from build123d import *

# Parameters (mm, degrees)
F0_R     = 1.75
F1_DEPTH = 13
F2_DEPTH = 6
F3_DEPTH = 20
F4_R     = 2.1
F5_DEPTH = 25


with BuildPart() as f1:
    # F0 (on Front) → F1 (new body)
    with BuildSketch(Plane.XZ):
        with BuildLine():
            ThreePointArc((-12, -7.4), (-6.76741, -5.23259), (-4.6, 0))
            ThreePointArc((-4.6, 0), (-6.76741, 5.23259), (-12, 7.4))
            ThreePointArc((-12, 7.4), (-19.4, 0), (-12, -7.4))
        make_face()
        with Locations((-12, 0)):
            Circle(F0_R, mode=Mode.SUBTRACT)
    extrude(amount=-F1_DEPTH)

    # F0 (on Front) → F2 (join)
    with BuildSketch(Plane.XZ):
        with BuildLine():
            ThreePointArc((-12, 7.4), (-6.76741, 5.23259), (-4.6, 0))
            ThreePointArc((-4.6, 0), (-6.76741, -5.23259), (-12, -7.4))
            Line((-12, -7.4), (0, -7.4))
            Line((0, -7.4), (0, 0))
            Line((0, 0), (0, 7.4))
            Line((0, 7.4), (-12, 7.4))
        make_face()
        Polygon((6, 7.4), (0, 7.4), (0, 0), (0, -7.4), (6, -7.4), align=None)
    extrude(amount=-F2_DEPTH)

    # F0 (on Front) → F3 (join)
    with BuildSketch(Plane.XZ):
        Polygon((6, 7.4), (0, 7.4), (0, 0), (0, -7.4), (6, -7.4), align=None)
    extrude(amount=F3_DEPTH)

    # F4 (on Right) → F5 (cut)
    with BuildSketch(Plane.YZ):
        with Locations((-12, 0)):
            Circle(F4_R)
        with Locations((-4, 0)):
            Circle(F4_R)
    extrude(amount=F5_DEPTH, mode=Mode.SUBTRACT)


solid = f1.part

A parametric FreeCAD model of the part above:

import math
import FreeCAD as App
import Part
import Sketcher


def add_polygon(sketch, points):
    """Adds a closed chain of lines whose ends are joined by coincident constraints."""
    first, n = sketch.GeometryCount, len(points)
    for a, b in zip(points, points[1:] + points[:1]):
        sketch.addGeometry(Part.LineSegment(App.Vector(*a, 0), App.Vector(*b, 0)), False)
    for i in range(n):
        sketch.addConstraint(Sketcher.Constraint("Coincident", first + i, 2, first + (i + 1) % n, 1))

doc = App.newDocument("Part")
params = doc.addObject("Spreadsheet::Sheet", "Params")
for row, (alias, value) in enumerate([
    ("sketch1_diameter", "3.5 mm"),
    ("sketch1_radius", "7.400001 mm"),
    ("pad1_length", "13 mm"),
    ("sketch2_radius", "7.400001 mm"),
    ("sketch2_width", "18 mm"),
    ("pad2_length", "6 mm"),
    ("sketch3_width", "6 mm"),
    ("sketch3_height", "14.8 mm"),
    ("pad3_length", "20 mm"),
    ("sketch4_diameter", "4.2 mm"),
    ("pocket1_length", "25 mm"),
], start=1):
    params.set(f"A{row}", alias)
    params.set(f"B{row}", "=" + value)
    params.setAlias(f"B{row}", alias)

body = doc.addObject("PartDesign::Body", "Body")

sketch1 = body.newObject("Sketcher::SketchObject", "Sketch")
sketch1.AttachmentSupport = (doc.getObject("XZ_Plane"), [""])
sketch1.MapMode = "FlatFace"
sketch1.addGeometry(Part.ArcOfCircle(Part.Circle(App.Vector(-12.000001, 0.000001, 0), App.Vector(0, 0, 1), 7.400001), math.radians(-89.999995), math.radians(-0.000005)), False)
sketch1.addGeometry(Part.ArcOfCircle(Part.Circle(App.Vector(-12.000001, -0.000001, 0), App.Vector(0, 0, 1), 7.400001), math.radians(0.000005), math.radians(89.999995)), False)
sketch1.addGeometry(Part.ArcOfCircle(Part.Circle(App.Vector(-12, 0, 0), App.Vector(0, 0, 1), 7.4), math.radians(90), math.radians(270)), False)
sketch1.addGeometry(Part.Circle(App.Vector(-12, 0, 0), App.Vector(0, 0, 1), 1.75), False)
sketch1.addConstraint(Sketcher.Constraint("Tangent", 0, 2, 1, 1))
sketch1.addConstraint(Sketcher.Constraint("Tangent", 1, 2, 2, 1))
sketch1.addConstraint(Sketcher.Constraint("Tangent", 2, 2, 0, 1))
sketch1.addConstraint(Sketcher.Constraint("Coincident", 3, 3, 0, 3))
sketch1.addConstraint(Sketcher.Constraint("Symmetric", 1, 2, 2, 2, -1))
sketch1.addConstraint(Sketcher.Constraint("PointOnObject", 0, 2, -1))
sketch1.addConstraint(Sketcher.Constraint("Vertical", 3, 3, 1, 2))
sketch1.addConstraint(Sketcher.Constraint("Diameter", 3, 3.5))
sketch1.addConstraint(Sketcher.Constraint("Radius", 0, 7.400001))
sketch1.addConstraint(Sketcher.Constraint("DistanceX", 0, 3, -1, 1, 12.000001))
sketch1.setExpression("Constraints[7]", "Params.sketch1_diameter")
sketch1.setExpression("Constraints[8]", "Params.sketch1_radius")
pad1 = body.newObject("PartDesign::Pad", "Pad")
pad1.Profile = sketch1
pad1.setExpression("Length", "Params.pad1_length")
pad1.Reversed = True

sketch2 = body.newObject("Sketcher::SketchObject", "Sketch001")
sketch2.AttachmentSupport = (doc.getObject("XZ_Plane"), [""])
sketch2.MapMode = "FlatFace"
sketch2.addGeometry(Part.ArcOfCircle(Part.Circle(App.Vector(-12.000001, -0.000001, 0), App.Vector(0, 0, 1), 7.400001), math.radians(0.000005), math.radians(89.999995)), False)
sketch2.addGeometry(Part.ArcOfCircle(Part.Circle(App.Vector(-12.000001, 0.000001, 0), App.Vector(0, 0, 1), 7.400001), math.radians(-89.999995), math.radians(-0.000005)), False)
sketch2.addGeometry(Part.LineSegment(App.Vector(-12, -7.4, 0), App.Vector(6, -7.4, 0)), False)
sketch2.addGeometry(Part.LineSegment(App.Vector(6, -7.4, 0), App.Vector(6, 7.4, 0)), False)
sketch2.addGeometry(Part.LineSegment(App.Vector(6, 7.4, 0), App.Vector(-12, 7.4, 0)), False)
sketch2.addConstraint(Sketcher.Constraint("Tangent", 0, 1, 1, 2))
sketch2.addConstraint(Sketcher.Constraint("Tangent", 1, 1, 2, 1))
sketch2.addConstraint(Sketcher.Constraint("Coincident", 2, 2, 3, 1))
sketch2.addConstraint(Sketcher.Constraint("Coincident", 3, 2, 4, 1))
sketch2.addConstraint(Sketcher.Constraint("Tangent", 4, 2, 0, 2))
sketch2.addConstraint(Sketcher.Constraint("Horizontal", 2))
sketch2.addConstraint(Sketcher.Constraint("Vertical", 3))
sketch2.addConstraint(Sketcher.Constraint("Horizontal", 4))
sketch2.addConstraint(Sketcher.Constraint("Equal", 0, 1))
sketch2.addConstraint(Sketcher.Constraint("PointOnObject", 0, 3, -1))
sketch2.addConstraint(Sketcher.Constraint("PointOnObject", 0, 1, -1))
sketch2.addConstraint(Sketcher.Constraint("Radius", 0, 7.400001))
sketch2.addConstraint(Sketcher.Constraint("DistanceX", 2, 1, 2, 2, 18.0))
sketch2.addConstraint(Sketcher.Constraint("DistanceX", 0, 3, -1, 1, 12.000001))
sketch2.setExpression("Constraints[11]", "Params.sketch2_radius")
sketch2.setExpression("Constraints[12]", "Params.sketch2_width")
pad2 = body.newObject("PartDesign::Pad", "Pad001")
pad2.Profile = sketch2
pad2.setExpression("Length", "Params.pad2_length")
pad2.Reversed = True

sketch3 = body.newObject("Sketcher::SketchObject", "Sketch002")
sketch3.AttachmentSupport = (doc.getObject("XZ_Plane"), [""])
sketch3.MapMode = "FlatFace"
add_polygon(sketch3, [(6, 7.4), (0, 7.4), (0, -7.4), (6, -7.4)])
sketch3.addConstraint(Sketcher.Constraint("Horizontal", 0))
sketch3.addConstraint(Sketcher.Constraint("Vertical", 1))
sketch3.addConstraint(Sketcher.Constraint("Horizontal", 2))
sketch3.addConstraint(Sketcher.Constraint("Vertical", 3))
sketch3.addConstraint(Sketcher.Constraint("Symmetric", 0, 2, 1, 2, -1, 1))
sketch3.addConstraint(Sketcher.Constraint("DistanceX", 0, 2, 0, 1, 6.0))
sketch3.addConstraint(Sketcher.Constraint("DistanceY", 1, 2, 1, 1, 14.8))
sketch3.setExpression("Constraints[9]", "Params.sketch3_width")
sketch3.setExpression("Constraints[10]", "Params.sketch3_height")
pad3 = body.newObject("PartDesign::Pad", "Pad002")
pad3.Profile = sketch3
pad3.setExpression("Length", "Params.pad3_length")

sketch4 = body.newObject("Sketcher::SketchObject", "Sketch003")
sketch4.AttachmentSupport = (doc.getObject("YZ_Plane"), [""])
sketch4.MapMode = "FlatFace"
sketch4.addGeometry(Part.Circle(App.Vector(-12, 0, 0), App.Vector(0, 0, 1), 2.1), False)
sketch4.addGeometry(Part.Circle(App.Vector(-4, 0, 0), App.Vector(0, 0, 1), 2.1), False)
sketch4.addConstraint(Sketcher.Constraint("Equal", 0, 1))
sketch4.addConstraint(Sketcher.Constraint("PointOnObject", 0, 3, -1))
sketch4.addConstraint(Sketcher.Constraint("PointOnObject", 1, 3, -1))
sketch4.addConstraint(Sketcher.Constraint("Diameter", 0, 4.2))
sketch4.addConstraint(Sketcher.Constraint("DistanceX", 0, 3, -1, 1, 12.0))
sketch4.addConstraint(Sketcher.Constraint("DistanceX", 1, 3, -1, 1, 4.0))
sketch4.setExpression("Constraints[3]", "Params.sketch4_diameter")
pocket1 = body.newObject("PartDesign::Pocket", "Pocket")
pocket1.Profile = sketch4
pocket1.setExpression("Length", "Params.pocket1_length")
pocket1.Reversed = True

doc.recompute()
